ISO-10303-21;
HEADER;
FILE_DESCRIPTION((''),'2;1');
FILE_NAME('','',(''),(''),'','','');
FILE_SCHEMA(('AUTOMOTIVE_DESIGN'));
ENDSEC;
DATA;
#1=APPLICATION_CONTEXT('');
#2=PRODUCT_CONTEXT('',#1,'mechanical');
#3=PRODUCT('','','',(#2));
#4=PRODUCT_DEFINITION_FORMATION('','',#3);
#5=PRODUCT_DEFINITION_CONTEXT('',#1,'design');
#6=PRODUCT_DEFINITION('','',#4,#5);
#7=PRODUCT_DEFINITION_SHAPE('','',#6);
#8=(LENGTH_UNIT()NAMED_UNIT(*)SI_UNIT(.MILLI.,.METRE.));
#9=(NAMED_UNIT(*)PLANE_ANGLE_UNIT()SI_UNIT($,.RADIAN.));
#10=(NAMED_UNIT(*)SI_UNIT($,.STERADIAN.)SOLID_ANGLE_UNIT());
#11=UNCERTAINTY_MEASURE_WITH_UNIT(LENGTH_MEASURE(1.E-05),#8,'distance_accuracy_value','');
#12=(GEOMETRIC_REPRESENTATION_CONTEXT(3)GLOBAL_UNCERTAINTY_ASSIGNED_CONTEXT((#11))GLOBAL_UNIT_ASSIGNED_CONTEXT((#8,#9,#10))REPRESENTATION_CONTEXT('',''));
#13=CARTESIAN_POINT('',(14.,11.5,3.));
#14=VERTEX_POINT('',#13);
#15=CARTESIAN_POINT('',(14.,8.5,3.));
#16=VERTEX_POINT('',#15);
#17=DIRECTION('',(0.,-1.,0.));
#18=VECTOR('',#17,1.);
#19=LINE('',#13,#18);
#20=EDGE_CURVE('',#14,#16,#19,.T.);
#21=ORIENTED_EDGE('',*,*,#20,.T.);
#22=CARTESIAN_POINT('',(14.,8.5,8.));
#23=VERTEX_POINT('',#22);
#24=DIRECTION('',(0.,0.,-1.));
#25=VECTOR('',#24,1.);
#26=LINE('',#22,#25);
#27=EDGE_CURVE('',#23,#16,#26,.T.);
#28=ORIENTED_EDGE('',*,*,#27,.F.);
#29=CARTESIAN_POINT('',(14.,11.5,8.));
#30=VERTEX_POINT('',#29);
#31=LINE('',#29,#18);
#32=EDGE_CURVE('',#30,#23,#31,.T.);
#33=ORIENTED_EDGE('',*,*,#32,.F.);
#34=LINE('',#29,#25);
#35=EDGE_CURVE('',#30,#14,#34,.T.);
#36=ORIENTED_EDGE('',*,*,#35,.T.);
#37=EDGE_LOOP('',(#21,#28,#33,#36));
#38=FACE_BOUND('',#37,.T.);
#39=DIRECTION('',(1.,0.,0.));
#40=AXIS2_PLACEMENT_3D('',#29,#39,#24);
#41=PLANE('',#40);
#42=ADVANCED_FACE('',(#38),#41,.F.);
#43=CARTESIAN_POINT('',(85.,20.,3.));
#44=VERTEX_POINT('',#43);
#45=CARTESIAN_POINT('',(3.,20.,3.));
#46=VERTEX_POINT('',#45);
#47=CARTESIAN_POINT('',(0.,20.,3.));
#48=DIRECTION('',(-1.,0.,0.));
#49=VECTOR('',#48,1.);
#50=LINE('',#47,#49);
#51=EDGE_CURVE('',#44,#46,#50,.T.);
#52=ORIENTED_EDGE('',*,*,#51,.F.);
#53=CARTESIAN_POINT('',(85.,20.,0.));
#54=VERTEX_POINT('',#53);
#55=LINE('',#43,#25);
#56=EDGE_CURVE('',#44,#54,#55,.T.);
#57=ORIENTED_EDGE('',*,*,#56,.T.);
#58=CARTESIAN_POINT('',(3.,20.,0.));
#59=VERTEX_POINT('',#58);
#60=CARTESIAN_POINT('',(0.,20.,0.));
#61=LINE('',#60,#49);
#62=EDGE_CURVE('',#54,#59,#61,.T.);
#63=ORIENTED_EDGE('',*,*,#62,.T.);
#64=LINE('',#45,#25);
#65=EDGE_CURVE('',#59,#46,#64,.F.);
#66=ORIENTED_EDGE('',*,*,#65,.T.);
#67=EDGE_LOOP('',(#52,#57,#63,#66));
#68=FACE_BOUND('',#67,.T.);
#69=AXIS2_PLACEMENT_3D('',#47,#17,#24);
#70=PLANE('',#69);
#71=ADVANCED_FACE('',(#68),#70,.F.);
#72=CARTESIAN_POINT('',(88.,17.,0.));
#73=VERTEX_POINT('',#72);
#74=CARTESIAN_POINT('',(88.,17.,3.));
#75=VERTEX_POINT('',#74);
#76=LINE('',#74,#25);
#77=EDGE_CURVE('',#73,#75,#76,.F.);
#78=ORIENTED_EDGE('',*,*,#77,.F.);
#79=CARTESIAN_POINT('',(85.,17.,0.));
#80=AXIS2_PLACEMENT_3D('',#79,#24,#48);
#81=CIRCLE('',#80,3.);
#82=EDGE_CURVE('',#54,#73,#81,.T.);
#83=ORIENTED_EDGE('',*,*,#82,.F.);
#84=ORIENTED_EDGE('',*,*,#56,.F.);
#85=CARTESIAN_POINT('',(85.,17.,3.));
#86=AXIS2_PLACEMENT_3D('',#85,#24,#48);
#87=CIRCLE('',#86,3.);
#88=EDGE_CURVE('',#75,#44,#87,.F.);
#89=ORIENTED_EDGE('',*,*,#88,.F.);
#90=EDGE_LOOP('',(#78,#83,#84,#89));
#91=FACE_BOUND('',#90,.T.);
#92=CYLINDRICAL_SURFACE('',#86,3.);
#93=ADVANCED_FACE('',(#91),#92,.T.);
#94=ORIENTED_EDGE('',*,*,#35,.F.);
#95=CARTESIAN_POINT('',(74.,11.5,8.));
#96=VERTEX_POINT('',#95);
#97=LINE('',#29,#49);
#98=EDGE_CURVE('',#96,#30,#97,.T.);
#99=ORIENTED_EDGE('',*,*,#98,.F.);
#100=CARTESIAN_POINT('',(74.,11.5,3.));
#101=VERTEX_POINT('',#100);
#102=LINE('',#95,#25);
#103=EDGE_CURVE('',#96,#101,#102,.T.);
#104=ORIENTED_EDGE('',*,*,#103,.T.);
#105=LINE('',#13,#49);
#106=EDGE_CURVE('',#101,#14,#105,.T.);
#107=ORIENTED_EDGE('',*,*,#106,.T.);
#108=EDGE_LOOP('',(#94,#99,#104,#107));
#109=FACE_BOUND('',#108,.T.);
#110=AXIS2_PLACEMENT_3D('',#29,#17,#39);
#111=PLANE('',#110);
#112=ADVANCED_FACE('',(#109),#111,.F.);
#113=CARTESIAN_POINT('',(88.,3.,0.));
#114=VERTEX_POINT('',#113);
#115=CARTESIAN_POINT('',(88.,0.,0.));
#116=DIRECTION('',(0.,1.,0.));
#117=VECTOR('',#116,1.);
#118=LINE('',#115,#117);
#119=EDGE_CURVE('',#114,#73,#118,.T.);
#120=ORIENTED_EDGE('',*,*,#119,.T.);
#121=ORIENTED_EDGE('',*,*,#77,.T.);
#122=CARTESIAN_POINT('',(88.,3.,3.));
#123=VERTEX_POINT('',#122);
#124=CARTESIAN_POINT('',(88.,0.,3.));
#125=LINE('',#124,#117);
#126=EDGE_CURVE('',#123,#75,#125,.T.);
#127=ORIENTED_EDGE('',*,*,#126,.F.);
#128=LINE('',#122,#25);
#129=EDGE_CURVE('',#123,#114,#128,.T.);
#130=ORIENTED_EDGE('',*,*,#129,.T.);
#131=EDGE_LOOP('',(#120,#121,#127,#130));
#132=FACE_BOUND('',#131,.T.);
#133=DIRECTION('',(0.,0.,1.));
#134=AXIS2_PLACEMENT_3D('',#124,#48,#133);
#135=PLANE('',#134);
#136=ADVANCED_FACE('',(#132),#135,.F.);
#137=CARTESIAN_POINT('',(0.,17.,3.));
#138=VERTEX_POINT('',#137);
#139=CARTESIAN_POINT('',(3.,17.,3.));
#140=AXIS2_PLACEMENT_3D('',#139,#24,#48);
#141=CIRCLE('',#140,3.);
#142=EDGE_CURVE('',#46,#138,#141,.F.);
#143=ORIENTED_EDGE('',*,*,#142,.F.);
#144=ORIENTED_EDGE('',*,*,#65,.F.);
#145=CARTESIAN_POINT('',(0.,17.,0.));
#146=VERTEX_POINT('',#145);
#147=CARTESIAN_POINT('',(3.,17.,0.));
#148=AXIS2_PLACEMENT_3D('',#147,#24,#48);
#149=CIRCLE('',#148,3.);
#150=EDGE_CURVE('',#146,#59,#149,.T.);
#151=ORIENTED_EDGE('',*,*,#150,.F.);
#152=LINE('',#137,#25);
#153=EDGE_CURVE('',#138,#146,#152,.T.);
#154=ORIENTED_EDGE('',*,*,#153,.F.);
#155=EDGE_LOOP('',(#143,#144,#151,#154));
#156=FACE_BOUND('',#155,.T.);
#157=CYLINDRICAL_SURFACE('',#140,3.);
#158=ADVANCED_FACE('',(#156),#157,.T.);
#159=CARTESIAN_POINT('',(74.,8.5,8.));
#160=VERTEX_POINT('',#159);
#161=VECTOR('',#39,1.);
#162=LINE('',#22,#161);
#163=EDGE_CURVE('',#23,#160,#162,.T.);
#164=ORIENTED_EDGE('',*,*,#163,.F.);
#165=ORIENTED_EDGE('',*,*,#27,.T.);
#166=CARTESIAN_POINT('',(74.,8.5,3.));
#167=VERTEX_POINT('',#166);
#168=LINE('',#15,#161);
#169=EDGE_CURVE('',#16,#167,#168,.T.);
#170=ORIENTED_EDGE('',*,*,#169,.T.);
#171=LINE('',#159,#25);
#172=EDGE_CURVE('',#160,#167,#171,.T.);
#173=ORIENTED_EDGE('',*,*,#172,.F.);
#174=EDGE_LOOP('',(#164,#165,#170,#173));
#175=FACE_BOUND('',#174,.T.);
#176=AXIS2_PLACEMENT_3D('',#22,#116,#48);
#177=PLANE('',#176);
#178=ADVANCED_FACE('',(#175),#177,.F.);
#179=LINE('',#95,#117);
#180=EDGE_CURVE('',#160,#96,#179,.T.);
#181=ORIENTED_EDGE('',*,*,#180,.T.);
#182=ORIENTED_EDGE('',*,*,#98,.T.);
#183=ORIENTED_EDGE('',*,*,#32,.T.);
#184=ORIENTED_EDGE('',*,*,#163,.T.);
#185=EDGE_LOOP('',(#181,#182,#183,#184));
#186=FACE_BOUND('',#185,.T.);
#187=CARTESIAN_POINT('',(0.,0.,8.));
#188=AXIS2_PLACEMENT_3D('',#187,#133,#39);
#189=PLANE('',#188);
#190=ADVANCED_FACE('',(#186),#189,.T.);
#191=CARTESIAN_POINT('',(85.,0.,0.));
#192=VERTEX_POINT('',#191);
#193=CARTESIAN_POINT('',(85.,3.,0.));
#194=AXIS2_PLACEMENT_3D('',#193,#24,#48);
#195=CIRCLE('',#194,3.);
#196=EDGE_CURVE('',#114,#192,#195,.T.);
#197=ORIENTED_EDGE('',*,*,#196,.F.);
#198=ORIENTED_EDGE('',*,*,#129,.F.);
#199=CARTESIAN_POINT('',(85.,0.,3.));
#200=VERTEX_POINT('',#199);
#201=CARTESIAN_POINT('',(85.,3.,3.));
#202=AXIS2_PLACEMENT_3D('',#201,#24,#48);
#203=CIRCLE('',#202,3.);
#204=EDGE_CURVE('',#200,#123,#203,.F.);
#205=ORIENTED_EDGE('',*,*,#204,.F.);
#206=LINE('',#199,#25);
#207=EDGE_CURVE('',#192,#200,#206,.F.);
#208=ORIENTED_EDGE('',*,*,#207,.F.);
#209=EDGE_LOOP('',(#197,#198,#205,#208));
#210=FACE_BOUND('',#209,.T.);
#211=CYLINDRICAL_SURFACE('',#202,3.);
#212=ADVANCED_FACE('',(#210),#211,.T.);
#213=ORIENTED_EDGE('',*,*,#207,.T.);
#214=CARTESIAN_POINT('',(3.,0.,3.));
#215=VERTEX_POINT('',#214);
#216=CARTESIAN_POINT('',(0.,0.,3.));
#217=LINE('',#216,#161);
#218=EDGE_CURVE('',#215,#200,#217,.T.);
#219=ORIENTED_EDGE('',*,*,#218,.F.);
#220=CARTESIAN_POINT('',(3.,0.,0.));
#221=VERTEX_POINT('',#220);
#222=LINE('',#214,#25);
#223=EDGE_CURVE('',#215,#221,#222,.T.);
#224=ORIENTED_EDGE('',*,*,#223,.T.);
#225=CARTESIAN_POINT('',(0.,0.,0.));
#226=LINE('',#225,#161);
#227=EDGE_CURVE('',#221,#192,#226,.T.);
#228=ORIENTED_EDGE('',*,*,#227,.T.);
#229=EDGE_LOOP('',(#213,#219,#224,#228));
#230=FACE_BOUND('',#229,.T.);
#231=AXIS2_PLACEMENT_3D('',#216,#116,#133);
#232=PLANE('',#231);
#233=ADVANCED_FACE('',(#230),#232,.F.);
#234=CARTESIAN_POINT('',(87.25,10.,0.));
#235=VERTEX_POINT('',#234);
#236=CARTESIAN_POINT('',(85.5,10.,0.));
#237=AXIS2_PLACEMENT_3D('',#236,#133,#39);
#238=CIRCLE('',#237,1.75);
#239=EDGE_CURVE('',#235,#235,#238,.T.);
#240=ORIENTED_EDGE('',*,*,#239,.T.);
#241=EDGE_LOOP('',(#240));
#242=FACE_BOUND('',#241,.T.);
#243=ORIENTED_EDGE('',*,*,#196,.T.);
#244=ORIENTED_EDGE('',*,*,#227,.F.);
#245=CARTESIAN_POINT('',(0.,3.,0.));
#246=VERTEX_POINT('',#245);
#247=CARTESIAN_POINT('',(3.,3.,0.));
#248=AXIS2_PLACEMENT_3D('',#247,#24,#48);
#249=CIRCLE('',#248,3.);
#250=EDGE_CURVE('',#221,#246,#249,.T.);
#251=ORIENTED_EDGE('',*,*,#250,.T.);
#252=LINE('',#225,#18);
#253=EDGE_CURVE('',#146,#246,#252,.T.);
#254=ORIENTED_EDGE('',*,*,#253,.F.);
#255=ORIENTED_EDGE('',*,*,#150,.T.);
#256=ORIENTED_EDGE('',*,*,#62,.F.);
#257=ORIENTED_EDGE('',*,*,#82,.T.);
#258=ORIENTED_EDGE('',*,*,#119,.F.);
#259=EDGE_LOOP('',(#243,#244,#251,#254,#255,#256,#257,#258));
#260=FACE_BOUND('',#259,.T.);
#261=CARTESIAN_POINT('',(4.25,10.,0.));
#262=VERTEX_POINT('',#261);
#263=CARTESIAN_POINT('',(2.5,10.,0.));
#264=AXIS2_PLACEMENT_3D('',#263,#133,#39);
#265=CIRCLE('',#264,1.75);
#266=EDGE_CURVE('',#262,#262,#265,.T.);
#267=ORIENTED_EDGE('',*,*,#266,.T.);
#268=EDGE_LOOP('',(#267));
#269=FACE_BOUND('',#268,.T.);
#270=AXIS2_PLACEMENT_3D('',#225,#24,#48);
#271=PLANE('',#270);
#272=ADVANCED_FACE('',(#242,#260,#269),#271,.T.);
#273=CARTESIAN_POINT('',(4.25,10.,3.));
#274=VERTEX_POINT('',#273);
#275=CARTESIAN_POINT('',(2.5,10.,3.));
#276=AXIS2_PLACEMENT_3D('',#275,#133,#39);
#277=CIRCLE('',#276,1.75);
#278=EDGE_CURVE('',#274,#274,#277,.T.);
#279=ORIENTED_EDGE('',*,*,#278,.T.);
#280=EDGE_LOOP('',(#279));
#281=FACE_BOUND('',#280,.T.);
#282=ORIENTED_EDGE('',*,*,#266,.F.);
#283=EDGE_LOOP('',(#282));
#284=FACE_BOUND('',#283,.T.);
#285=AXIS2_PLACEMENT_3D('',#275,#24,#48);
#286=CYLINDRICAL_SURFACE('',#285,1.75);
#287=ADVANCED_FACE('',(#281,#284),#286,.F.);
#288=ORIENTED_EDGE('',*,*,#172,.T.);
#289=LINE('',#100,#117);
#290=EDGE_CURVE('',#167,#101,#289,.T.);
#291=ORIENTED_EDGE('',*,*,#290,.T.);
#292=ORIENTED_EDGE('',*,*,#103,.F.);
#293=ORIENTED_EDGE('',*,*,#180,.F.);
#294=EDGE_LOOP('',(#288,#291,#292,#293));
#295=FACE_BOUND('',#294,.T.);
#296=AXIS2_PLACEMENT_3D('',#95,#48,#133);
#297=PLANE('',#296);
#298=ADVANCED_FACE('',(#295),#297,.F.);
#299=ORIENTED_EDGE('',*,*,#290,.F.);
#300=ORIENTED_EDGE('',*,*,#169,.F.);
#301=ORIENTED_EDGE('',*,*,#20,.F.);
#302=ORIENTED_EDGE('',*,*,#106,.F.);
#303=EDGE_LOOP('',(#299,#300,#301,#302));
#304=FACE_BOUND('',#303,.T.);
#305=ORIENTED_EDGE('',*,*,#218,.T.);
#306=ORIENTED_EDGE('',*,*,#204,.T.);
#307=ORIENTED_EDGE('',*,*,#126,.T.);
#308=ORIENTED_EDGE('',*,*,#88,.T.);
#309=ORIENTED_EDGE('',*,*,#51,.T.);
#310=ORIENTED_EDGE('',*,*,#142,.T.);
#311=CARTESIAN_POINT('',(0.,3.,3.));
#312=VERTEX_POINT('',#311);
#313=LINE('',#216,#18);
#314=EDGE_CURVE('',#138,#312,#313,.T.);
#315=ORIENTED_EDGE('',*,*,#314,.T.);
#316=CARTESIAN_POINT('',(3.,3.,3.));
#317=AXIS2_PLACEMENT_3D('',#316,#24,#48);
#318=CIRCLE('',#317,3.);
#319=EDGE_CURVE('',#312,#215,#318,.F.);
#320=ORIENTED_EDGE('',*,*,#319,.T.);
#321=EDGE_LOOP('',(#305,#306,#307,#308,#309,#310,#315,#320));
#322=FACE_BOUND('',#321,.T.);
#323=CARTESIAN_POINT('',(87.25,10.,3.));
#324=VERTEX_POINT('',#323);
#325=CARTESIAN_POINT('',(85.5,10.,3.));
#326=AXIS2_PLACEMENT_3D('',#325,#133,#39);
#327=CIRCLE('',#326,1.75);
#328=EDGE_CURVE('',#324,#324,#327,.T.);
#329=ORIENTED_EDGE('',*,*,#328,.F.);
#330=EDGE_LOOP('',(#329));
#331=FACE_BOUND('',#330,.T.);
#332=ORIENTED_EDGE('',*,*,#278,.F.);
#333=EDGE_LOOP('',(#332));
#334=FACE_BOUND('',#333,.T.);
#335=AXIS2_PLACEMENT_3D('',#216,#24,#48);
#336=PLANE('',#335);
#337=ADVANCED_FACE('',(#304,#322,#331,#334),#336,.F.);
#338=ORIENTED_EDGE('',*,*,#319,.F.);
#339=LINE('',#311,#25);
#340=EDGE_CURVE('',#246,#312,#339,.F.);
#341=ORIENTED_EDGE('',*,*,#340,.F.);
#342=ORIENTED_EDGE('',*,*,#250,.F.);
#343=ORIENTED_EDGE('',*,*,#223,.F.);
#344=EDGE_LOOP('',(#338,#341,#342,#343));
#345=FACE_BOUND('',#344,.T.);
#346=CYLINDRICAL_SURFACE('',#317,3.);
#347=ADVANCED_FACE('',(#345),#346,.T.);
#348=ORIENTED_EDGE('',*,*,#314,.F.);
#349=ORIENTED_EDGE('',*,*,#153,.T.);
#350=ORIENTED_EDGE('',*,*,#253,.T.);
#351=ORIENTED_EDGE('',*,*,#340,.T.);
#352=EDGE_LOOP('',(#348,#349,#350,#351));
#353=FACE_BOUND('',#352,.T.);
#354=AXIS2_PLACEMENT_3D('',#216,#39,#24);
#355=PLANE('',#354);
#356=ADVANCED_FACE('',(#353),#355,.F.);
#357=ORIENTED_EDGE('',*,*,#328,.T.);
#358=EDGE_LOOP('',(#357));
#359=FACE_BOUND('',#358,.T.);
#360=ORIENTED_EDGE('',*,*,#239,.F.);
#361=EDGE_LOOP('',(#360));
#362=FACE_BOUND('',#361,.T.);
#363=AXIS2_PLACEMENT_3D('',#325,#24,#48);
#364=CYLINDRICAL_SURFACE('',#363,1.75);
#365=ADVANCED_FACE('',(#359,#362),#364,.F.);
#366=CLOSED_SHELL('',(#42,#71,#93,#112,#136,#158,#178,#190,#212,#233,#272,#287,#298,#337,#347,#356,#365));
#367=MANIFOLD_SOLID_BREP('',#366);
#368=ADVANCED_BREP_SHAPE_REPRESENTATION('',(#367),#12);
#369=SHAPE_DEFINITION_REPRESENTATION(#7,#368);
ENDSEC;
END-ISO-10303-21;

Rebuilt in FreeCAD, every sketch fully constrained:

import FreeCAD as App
import Part
import Sketcher


def edges_at(feature, points):
    """Names of the edges that pass closest to the given points."""
    edges = feature.Shape.Edges
    near = lambda p: min(range(len(edges)), key=lambda i: edges[i].distToShape(Part.Vertex(*p))[0])
    return sorted({f"Edge{near(p) + 1}" for p in points})


def add_polygon(sketch, points):
    """Adds a closed chain of lines whose ends are joined by coincident constraints."""
    first, n = sketch.GeometryCount, len(points)
    for a, b in zip(points, points[1:] + points[:1]):
        sketch.addGeometry(Part.LineSegment(App.Vector(*a, 0), App.Vector(*b, 0)), False)
    for i in range(n):
        sketch.addConstraint(Sketcher.Constraint("Coincident", first + i, 2, first + (i + 1) % n, 1))

doc = App.newDocument("Part")
body = doc.addObject("PartDesign::Body", "Body")

# Sketch on XY plane
sketch1 = body.newObject("Sketcher::SketchObject", "Sketch")
sketch1.AttachmentSupport = (doc.getObject("XY_Plane"), [""])
sketch1.MapMode = "FlatFace"
add_polygon(sketch1, [(0, 20), (0, 0), (88, 0), (88, 20)])  # lines 0-3
sketch1.addGeometry(Part.Circle(App.Vector(2.5, 10, 0), App.Vector(0, 0, 1), 1.75), False)  # 4
sketch1.addGeometry(Part.Circle(App.Vector(85.5, 10, 0), App.Vector(0, 0, 1), 1.75), False)  # 5
sketch1.addConstraint([
    Sketcher.Constraint("Vertical", 0),
    Sketcher.Constraint("Horizontal", 1),
    Sketcher.Constraint("Vertical", 2),
    Sketcher.Constraint("Horizontal", 3),
    Sketcher.Constraint("Coincident", 0, 2, -1, 1),
    Sketcher.Constraint("Equal", 4, 5),
    Sketcher.Constraint("Horizontal", 4, 3, 5, 3),
    Sketcher.Constraint("Diameter", 4, 3.5),
    Sketcher.Constraint("DistanceX", 1, 1, 1, 2, 88.0),
    Sketcher.Constraint("DistanceY", 0, 2, 0, 1, 20.0),
    Sketcher.Constraint("DistanceY", -1, 1, 4, 3, 10.0),
    Sketcher.Constraint("DistanceX", 4, 3, 5, 3, 83.0),
    Sketcher.Constraint("DistanceX", -1, 1, 4, 3, 2.5),
])
pad1 = body.newObject("PartDesign::Pad", "Pad")
pad1.Profile = sketch1
pad1.Length = 3

# Sketch on XY plane
sketch2 = body.newObject("Sketcher::SketchObject", "Sketch001")
sketch2.AttachmentSupport = (doc.getObject("XY_Plane"), [""])
sketch2.MapMode = "FlatFace"
sketch2.AttachmentOffset = App.Placement(App.Vector(0, 0, 3), App.Rotation())
add_polygon(sketch2, [(14, 11.5), (14, 8.5), (74, 8.5), (74, 11.5)])  # lines 0-3
sketch2.addConstraint([
    Sketcher.Constraint("Vertical", 0),
    Sketcher.Constraint("Horizontal", 1),
    Sketcher.Constraint("Vertical", 2),
    Sketcher.Constraint("Horizontal", 3),
    Sketcher.Constraint("DistanceX", 1, 1, 1, 2, 60.0),
    Sketcher.Constraint("DistanceY", 0, 2, 0, 1, 3.0),
    Sketcher.Constraint("DistanceX", -1, 1, 0, 2, 14.0),
    Sketcher.Constraint("DistanceY", -1, 1, 0, 2, 8.5),
])
pad2 = body.newObject("PartDesign::Pad", "Pad001")
pad2.Profile = sketch2
pad2.Length = 5
doc.recompute()

fillet = body.newObject("PartDesign::Fillet", "Fillet")
fillet.Base = (pad2, edges_at(pad2, [
    (0, 20, 1.5),
    (88, 20, 1.5),
    (88, 0, 1.5),
    (0, 0, 1.5),
]))
fillet.Radius = 3

doc.recompute()
